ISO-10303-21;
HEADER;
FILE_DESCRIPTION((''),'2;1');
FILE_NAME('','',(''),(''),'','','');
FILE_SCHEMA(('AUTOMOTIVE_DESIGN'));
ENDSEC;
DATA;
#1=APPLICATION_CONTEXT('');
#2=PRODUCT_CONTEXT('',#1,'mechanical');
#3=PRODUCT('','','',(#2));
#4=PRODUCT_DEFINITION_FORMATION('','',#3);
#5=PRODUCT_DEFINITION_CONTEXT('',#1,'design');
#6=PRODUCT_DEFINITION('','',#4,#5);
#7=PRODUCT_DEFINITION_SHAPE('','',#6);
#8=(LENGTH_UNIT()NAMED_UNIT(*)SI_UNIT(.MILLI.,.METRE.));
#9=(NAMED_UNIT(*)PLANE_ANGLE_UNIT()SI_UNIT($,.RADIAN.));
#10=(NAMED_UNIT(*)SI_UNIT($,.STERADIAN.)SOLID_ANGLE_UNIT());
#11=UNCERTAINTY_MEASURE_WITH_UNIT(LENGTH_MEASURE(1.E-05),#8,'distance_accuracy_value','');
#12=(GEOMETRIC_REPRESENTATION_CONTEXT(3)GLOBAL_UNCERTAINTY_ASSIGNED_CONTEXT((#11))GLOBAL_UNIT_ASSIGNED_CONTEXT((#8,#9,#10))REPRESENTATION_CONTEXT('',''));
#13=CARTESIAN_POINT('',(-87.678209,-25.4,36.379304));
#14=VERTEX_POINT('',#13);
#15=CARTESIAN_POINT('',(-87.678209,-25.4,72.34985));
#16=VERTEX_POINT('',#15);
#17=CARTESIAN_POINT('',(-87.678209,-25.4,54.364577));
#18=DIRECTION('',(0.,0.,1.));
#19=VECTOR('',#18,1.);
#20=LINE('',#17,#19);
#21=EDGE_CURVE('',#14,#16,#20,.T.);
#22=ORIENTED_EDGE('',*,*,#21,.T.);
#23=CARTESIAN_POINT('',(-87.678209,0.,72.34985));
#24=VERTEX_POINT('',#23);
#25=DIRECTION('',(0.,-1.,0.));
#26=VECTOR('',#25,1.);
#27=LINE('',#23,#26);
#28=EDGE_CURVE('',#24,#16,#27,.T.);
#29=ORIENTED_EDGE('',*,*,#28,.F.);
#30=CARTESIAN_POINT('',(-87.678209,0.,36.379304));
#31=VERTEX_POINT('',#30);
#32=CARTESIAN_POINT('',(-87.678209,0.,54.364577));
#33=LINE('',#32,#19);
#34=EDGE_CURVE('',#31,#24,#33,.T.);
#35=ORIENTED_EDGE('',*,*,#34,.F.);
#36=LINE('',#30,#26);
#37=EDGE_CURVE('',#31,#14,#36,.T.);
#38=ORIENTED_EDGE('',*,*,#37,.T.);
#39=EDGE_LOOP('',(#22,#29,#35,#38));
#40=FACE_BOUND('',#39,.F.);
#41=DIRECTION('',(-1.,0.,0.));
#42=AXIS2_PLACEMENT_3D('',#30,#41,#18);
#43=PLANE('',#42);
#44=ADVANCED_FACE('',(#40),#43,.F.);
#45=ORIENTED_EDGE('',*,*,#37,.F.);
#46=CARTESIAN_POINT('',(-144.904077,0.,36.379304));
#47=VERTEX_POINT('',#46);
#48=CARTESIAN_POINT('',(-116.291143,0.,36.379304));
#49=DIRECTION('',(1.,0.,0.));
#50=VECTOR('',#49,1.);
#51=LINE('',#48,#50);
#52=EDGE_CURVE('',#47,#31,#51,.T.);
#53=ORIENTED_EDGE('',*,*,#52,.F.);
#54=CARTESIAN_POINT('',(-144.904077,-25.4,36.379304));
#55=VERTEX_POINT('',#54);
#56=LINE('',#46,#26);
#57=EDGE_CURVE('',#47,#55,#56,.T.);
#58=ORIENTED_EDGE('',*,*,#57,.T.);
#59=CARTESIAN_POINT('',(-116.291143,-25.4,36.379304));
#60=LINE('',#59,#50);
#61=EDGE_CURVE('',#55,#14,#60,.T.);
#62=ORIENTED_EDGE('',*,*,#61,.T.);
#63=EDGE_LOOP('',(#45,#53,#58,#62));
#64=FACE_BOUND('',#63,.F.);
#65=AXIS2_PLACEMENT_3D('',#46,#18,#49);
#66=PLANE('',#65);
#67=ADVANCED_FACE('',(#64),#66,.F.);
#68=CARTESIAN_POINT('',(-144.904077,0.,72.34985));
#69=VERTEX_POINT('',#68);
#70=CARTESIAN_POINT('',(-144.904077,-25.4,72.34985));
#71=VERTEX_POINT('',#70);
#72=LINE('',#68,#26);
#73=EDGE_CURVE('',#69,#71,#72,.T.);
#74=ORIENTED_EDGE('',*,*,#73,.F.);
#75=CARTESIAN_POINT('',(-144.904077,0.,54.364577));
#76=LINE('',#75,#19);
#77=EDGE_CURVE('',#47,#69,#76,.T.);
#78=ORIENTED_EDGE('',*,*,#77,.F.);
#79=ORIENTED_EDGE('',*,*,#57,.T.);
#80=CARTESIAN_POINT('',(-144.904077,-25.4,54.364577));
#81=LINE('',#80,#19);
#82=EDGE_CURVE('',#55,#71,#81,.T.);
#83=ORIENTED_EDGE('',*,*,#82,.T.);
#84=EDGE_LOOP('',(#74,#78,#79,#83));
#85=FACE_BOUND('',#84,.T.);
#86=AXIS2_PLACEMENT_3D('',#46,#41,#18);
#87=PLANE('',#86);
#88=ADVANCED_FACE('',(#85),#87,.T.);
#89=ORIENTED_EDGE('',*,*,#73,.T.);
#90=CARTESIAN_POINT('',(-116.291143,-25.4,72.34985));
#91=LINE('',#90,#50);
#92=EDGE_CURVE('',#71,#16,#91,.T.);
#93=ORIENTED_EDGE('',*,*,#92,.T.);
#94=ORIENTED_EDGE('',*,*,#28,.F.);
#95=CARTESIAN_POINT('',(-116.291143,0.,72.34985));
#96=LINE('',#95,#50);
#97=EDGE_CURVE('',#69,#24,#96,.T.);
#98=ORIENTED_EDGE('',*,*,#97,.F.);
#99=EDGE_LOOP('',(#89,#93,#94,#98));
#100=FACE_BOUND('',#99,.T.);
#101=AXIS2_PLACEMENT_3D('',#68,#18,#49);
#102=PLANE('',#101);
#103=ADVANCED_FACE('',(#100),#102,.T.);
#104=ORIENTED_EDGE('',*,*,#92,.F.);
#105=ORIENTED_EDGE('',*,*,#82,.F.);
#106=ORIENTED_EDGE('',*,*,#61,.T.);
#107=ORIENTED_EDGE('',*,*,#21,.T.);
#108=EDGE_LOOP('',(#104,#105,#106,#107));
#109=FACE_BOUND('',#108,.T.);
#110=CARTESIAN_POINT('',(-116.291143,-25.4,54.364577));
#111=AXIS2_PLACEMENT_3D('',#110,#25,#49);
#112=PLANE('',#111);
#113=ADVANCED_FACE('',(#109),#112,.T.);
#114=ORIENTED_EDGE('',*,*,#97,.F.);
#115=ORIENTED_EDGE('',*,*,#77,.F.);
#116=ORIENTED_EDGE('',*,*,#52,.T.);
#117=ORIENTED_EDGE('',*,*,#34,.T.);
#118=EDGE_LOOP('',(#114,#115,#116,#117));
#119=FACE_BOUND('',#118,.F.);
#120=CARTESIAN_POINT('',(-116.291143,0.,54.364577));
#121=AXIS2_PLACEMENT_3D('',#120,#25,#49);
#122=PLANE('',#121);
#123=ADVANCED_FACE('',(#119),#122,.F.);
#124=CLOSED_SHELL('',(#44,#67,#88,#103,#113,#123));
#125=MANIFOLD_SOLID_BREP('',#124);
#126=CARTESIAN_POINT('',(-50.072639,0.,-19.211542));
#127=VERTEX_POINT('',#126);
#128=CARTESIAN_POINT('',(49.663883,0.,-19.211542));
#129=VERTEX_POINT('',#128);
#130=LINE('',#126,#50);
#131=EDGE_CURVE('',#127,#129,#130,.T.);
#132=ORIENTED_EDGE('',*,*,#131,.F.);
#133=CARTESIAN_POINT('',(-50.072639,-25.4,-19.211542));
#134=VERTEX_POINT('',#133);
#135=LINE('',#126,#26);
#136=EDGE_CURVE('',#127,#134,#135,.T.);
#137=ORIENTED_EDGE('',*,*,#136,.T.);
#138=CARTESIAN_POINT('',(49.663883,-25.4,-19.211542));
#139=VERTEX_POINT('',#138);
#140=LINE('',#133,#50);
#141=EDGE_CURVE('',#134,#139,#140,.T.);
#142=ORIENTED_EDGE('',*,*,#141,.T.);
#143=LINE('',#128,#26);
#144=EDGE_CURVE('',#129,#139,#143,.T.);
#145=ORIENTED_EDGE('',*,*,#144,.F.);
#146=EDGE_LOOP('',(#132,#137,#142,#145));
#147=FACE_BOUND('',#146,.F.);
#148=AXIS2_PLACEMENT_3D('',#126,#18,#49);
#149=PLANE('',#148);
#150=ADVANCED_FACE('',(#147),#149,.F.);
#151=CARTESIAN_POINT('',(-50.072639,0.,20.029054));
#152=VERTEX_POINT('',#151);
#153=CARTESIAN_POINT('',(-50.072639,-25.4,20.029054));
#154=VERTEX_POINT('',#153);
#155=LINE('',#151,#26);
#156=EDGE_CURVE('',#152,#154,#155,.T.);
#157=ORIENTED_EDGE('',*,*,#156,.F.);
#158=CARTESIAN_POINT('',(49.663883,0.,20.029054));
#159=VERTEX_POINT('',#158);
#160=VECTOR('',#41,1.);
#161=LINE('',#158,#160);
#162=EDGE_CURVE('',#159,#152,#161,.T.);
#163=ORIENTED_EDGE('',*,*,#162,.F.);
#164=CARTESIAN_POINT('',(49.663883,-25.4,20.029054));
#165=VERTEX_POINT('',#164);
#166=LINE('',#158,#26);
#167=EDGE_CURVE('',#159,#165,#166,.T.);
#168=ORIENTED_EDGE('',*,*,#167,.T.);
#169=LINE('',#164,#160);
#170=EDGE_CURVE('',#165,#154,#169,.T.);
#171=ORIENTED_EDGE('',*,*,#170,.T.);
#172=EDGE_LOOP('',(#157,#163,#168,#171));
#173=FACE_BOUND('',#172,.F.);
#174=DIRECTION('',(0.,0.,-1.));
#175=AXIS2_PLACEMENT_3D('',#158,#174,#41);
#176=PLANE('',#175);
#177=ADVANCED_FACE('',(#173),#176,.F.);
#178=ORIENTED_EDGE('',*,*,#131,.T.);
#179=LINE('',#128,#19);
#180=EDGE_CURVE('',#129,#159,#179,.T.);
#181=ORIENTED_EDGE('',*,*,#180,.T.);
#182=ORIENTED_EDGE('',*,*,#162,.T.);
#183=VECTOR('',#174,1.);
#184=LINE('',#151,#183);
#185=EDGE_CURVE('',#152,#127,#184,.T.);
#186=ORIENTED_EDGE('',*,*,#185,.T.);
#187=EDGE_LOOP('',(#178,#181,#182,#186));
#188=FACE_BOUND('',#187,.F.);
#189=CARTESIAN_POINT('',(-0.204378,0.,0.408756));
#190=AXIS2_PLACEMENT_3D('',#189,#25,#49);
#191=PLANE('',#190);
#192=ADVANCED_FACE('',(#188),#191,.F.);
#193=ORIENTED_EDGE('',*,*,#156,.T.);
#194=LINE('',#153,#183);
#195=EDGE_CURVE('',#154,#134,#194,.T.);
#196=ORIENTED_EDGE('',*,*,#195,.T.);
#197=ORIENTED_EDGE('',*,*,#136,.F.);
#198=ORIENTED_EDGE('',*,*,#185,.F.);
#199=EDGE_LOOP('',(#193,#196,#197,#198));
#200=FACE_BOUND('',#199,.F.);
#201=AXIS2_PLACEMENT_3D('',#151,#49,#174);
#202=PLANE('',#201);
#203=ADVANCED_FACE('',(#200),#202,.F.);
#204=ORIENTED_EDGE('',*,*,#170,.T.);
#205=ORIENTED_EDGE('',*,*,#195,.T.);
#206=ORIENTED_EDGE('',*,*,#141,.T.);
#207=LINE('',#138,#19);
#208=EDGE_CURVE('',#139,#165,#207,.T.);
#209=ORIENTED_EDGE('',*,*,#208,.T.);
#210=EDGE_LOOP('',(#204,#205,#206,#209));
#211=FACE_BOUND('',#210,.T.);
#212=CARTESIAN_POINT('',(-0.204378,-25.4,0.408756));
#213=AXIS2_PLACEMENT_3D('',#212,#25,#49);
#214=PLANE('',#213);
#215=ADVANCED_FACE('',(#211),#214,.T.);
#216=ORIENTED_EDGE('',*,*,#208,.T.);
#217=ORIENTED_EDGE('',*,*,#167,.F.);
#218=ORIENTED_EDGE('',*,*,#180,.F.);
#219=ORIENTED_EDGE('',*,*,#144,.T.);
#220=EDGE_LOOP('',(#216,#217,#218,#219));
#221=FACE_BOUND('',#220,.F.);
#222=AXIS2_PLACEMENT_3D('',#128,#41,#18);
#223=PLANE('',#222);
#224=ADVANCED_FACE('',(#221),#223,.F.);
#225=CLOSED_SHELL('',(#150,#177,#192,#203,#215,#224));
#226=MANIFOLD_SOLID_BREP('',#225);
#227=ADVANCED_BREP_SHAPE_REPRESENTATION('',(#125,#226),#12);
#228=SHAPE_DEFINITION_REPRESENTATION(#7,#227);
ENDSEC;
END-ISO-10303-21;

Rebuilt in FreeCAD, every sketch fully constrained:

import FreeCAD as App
import Part
import Sketcher
Q = App.Units.Quantity


def add_polygon(sketch, points):
    """Adds a closed chain of lines whose ends are joined by coincident constraints."""
    first, n = sketch.GeometryCount, len(points)
    for a, b in zip(points, points[1:] + points[:1]):
        sketch.addGeometry(Part.LineSegment(App.Vector(*a, 0), App.Vector(*b, 0)), False)
    for i in range(n):
        sketch.addConstraint(Sketcher.Constraint("Coincident", first + i, 2, first + (i + 1) % n, 1))

doc = App.newDocument("Part")
params = doc.addObject("Spreadsheet::Sheet", "Params")
for row, (alias, value) in enumerate([
    ("pad1_length", "1 in"),
    ("pad2_length", "1 in"),
], start=1):
    params.set(f"A{row}", alias)
    params.set(f"B{row}", "=" + value)
    params.setAlias(f"B{row}", alias)

body = doc.addObject("PartDesign::Body", "Body")
body.AllowCompound = True

# Sketch on XZ plane
sketch1 = body.newObject("Sketcher::SketchObject", "Sketch")
sketch1.AttachmentSupport = (doc.getObject("XZ_Plane"), [""])
sketch1.MapMode = "FlatFace"
add_polygon(sketch1, [(-145, 72), (-145, 36), (-88, 36), (-88, 72)])  # lines 0-3
sketch1.addConstraint([
    Sketcher.Constraint("Vertical", 0),
    Sketcher.Constraint("Horizontal", 1),
    Sketcher.Constraint("Vertical", 2),
    Sketcher.Constraint("Horizontal", 3),
    Sketcher.Constraint("DistanceX", 1, 1, 1, 2, Q("57.225868 mm")),
    Sketcher.Constraint("DistanceY", 0, 2, 0, 1, Q("35.970546 mm")),
    Sketcher.Constraint("DistanceX", 1, 2, -1, 1, Q("87.678209 mm")),
    Sketcher.Constraint("DistanceY", -1, 1, 2, 2, Q("72.34985 mm")),
])
pad1 = body.newObject("PartDesign::Pad", "Pad")
pad1.Profile = sketch1
pad1.setExpression("Length", "Params.pad1_length")

# Sketch on XZ plane
sketch2 = body.newObject("Sketcher::SketchObject", "Sketch001")
sketch2.AttachmentSupport = (doc.getObject("XZ_Plane"), [""])
sketch2.MapMode = "FlatFace"
add_polygon(sketch2, [(-50, -19), (50, -19), (50, 20), (-50, 20)])  # lines 0-3
add_polygon(sketch2, [(-145, 72), (-145, 36), (-88, 36), (-88, 72)])  # lines 4-7
sketch2.addConstraint([
    Sketcher.Constraint("Horizontal", 0),
    Sketcher.Constraint("Vertical", 1),
    Sketcher.Constraint("Horizontal", 2),
    Sketcher.Constraint("Vertical", 3),
    Sketcher.Constraint("Vertical", 4),
    Sketcher.Constraint("Horizontal", 5),
    Sketcher.Constraint("Vertical", 6),
    Sketcher.Constraint("Horizontal", 7),
    Sketcher.Constraint("DistanceX", 5, 1, 5, 2, Q("57.225868 mm")),
    Sketcher.Constraint("DistanceX", 0, 1, 0, 2, Q("99.736522 mm")),
    Sketcher.Constraint("DistanceY", 1, 1, 1, 2, Q("39.240596 mm")),
    Sketcher.Constraint("DistanceY", 4, 2, 4, 1, Q("35.970546 mm")),
    Sketcher.Constraint("DistanceX", 2, 2, -1, 1, Q("50.072639 mm")),
    Sketcher.Constraint("DistanceX", 5, 2, -1, 1, Q("87.678209 mm")),
    Sketcher.Constraint("DistanceY", -1, 1, 6, 2, Q("72.34985 mm")),
    Sketcher.Constraint("DistanceY", 2, 2, 4, 2, Q("16.35025 mm")),
])
pad2 = body.newObject("PartDesign::Pad", "Pad001")
pad2.Profile = sketch2
pad2.setExpression("Length", "Params.pad2_length")

doc.recompute()
